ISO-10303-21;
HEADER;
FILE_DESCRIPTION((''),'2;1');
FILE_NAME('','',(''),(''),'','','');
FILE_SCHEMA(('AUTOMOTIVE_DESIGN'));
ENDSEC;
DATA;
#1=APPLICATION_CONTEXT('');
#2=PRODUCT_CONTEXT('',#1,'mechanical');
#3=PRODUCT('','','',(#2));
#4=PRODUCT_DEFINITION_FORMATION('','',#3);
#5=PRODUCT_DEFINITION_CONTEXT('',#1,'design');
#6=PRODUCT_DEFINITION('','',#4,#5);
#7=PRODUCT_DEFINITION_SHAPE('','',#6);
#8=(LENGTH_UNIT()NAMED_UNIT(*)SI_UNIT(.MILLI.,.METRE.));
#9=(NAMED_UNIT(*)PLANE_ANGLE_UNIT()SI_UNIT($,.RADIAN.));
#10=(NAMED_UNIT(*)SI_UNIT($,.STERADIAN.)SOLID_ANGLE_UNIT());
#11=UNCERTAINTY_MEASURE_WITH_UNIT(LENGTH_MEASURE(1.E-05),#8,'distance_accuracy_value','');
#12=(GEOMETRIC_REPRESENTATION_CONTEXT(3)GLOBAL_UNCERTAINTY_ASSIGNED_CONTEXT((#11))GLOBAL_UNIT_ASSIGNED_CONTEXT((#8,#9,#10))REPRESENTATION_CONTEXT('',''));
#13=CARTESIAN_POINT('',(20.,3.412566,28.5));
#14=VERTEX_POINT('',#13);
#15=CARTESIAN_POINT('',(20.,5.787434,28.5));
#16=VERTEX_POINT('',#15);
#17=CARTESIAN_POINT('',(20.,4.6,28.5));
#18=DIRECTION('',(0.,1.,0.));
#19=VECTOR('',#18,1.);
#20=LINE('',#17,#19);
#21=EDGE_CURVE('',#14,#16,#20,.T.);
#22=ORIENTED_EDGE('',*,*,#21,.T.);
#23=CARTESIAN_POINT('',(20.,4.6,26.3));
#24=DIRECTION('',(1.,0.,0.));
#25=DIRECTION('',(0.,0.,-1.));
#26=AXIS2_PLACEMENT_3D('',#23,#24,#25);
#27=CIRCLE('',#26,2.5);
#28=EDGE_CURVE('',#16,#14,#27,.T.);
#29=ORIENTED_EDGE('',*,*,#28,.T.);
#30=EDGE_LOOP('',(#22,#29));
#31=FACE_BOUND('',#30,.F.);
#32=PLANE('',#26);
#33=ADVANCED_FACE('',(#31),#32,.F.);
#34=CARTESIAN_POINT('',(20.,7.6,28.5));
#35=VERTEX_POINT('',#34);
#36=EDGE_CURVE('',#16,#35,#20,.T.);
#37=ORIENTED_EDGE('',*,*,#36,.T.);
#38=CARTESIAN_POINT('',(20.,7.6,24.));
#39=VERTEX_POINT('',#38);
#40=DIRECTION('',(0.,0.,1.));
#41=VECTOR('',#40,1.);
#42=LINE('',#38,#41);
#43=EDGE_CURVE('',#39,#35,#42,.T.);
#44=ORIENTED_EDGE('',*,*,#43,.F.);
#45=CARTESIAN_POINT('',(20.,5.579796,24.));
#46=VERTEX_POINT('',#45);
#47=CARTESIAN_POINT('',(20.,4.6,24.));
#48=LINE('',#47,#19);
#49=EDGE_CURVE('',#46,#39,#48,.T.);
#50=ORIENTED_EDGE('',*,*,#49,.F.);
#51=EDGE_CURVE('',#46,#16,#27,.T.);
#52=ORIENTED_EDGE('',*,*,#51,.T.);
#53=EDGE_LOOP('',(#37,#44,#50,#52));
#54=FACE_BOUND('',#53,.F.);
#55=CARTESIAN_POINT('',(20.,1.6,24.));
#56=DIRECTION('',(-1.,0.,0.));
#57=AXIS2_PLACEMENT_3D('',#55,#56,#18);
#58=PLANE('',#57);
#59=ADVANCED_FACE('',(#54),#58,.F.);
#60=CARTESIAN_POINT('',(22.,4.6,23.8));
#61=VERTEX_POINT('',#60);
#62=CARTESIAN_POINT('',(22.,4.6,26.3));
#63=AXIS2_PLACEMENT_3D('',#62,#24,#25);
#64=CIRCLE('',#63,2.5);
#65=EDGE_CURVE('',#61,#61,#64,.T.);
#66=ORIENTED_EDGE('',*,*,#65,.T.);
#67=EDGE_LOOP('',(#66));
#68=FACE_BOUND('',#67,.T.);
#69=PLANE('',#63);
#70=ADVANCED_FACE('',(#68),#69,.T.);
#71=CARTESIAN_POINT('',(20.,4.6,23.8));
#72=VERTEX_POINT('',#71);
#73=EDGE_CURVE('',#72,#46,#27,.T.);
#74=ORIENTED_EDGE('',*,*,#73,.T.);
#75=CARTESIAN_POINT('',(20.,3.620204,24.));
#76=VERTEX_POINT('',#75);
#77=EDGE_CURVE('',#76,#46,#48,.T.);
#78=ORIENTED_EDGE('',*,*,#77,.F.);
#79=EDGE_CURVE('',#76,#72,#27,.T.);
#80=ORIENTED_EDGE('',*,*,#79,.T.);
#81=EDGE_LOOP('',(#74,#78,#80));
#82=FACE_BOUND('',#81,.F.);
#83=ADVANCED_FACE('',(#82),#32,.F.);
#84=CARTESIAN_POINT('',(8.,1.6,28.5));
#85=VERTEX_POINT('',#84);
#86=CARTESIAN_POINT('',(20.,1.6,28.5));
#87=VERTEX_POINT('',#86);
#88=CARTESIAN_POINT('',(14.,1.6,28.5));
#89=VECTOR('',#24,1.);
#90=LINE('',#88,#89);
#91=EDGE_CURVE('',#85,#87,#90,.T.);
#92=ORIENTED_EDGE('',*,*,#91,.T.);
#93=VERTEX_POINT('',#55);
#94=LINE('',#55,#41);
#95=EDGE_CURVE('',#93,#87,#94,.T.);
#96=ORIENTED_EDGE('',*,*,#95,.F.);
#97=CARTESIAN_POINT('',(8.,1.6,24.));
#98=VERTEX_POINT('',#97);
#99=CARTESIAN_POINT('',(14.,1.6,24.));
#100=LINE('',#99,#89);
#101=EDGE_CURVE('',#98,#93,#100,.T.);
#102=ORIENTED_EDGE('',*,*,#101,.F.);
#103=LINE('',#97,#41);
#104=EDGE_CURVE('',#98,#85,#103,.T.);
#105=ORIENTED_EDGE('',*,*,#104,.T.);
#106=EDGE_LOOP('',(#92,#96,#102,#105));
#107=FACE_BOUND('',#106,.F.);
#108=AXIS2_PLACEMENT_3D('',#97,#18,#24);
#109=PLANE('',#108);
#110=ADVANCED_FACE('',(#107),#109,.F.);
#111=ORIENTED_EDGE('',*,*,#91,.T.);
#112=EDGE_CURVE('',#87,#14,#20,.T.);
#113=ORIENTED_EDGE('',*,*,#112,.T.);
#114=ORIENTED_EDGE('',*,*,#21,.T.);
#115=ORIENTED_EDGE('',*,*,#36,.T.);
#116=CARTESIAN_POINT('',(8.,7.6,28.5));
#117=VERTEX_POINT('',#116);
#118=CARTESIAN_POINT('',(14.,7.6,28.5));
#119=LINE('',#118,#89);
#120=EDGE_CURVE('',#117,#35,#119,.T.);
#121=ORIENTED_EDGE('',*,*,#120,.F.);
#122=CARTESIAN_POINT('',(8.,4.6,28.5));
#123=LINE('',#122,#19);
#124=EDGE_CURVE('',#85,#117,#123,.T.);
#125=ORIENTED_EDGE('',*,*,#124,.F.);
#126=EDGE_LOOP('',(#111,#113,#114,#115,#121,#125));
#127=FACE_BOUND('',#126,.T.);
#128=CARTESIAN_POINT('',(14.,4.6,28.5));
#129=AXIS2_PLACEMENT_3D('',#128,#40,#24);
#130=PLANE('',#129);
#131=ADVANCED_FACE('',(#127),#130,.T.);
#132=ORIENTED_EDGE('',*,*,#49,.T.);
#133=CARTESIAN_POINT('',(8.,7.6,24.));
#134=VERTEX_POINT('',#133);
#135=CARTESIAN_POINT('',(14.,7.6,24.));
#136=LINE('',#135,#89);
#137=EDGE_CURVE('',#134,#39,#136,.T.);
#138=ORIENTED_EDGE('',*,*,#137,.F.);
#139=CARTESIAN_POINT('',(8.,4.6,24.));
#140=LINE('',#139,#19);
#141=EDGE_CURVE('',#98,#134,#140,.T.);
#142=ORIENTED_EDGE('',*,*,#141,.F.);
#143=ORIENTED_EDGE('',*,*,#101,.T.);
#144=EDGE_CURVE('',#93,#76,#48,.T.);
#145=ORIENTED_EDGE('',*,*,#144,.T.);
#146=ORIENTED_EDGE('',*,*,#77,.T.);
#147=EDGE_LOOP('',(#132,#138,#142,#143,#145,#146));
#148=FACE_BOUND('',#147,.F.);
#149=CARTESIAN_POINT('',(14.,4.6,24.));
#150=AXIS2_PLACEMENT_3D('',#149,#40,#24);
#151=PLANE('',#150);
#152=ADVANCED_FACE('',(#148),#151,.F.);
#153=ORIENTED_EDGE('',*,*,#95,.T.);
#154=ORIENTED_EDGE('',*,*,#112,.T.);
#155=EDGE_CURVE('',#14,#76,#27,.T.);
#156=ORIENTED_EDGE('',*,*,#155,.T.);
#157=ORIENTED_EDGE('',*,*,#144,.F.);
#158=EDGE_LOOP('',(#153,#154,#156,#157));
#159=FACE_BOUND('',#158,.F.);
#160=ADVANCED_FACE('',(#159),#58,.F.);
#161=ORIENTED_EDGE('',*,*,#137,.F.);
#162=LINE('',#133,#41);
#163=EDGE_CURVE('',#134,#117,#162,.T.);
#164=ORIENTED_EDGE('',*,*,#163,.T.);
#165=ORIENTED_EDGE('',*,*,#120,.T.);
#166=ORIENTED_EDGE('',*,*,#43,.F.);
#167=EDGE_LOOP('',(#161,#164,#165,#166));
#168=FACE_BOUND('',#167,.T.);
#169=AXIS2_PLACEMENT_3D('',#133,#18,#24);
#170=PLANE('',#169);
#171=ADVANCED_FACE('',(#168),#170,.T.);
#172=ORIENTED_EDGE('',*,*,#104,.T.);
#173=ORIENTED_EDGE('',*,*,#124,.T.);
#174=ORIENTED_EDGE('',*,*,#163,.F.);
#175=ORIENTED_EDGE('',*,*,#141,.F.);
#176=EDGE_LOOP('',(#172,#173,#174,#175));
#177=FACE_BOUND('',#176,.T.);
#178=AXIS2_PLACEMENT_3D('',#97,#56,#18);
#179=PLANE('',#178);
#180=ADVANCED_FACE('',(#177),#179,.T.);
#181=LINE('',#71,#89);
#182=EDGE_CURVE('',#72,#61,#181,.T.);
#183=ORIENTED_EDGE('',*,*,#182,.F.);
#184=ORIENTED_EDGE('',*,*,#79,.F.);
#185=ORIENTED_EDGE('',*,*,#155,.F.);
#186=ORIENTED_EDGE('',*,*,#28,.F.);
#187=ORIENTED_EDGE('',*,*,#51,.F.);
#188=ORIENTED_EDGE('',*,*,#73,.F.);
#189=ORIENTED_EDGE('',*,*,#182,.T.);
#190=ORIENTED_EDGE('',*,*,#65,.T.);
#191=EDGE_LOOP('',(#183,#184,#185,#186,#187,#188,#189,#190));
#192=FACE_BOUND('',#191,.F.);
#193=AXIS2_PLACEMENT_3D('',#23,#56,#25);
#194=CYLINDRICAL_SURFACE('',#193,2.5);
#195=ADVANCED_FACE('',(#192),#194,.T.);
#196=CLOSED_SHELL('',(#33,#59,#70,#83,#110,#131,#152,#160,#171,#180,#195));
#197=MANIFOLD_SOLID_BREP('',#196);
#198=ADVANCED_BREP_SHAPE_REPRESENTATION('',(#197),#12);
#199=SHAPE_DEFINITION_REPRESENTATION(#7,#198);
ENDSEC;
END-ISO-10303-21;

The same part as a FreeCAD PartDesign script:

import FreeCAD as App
import Part
import Sketcher
from FreeCAD import Vector
Q = App.Units.Quantity


def add_polygon(sketch, points):
    """Adds a closed chain of lines whose ends are joined by coincident constraints."""
    first, n = sketch.GeometryCount, len(points)
    for a, b in zip(points, points[1:] + points[:1]):
        sketch.addGeometry(Part.LineSegment(App.Vector(*a, 0), App.Vector(*b, 0)), False)
    for i in range(n):
        sketch.addConstraint(Sketcher.Constraint("Coincident", first + i, 2, first + (i + 1) % n, 1))

doc = App.newDocument("Part")
body = doc.addObject("PartDesign::Body", "Body")

sketch1 = body.newObject("Sketcher::SketchObject", "Sketch")
sketch1.AttachmentSupport = (doc.getObject("XY_Plane"), [""])
sketch1.MapMode = "FlatFace"
add_polygon(sketch1, [(0, 6), (0, 0), (12, 0), (12, 6)])
sketch1.addConstraint(Sketcher.Constraint("Vertical", 0))
sketch1.addConstraint(Sketcher.Constraint("Horizontal", 1))
sketch1.addConstraint(Sketcher.Constraint("Vertical", 2))
sketch1.addConstraint(Sketcher.Constraint("Horizontal", 3))
sketch1.addConstraint(Sketcher.Constraint("Coincident", 0, 2, -1, 1))
sketch1.addConstraint(Sketcher.Constraint("DistanceX", 1, 1, 1, 2, Q("12 mm")))
sketch1.addConstraint(Sketcher.Constraint("DistanceY", 0, 2, 0, 1, Q("6 mm")))
pad1 = body.newObject("PartDesign::Pad", "Pad")
pad1.Profile = sketch1
pad1.Length = 4.5
body2 = doc.addObject("PartDesign::Body", "Body001")

sketch2 = body2.newObject("Sketcher::SketchObject", "Sketch001")
sketch2.AttachmentSupport = (doc.getObject("XY_Plane001"), [""])
sketch2.MapMode = "FlatFace"
sketch2.addGeometry(Part.Circle(Vector(0, 0, 0), Vector(0, 0, 1), 2.5), False)
sketch2.addConstraint(Sketcher.Constraint("Coincident", 0, 3, -1, 1))
sketch2.addConstraint(Sketcher.Constraint("Diameter", 0, Q("5 mm")))
pad2 = body2.newObject("PartDesign::Pad", "Pad001")
pad2.Profile = sketch2
pad2.Length = 2
body3 = doc.addObject("PartDesign::Body", "Body002")
doc.recompute()

body2.Placement = App.Placement(Vector(0, 0, 0), App.Rotation(Vector(0, 1, 0), 90))
boolean = body3.newObject("PartDesign::Boolean", "Boolean")
boolean.Type = "Fuse"
boolean.addObjects([body2])
body4 = doc.addObject("PartDesign::Body", "Body003")
doc.recompute()

body3.Placement = App.Placement(Vector(12, 3, 2.3), App.Rotation(Vector(0, 0, 1), 0))
boolean2 = body4.newObject("PartDesign::Boolean", "Boolean001")
boolean2.Type = "Fuse"
boolean2.addObjects([body3])
doc.recompute()

boolean3 = body4.newObject("PartDesign::Boolean", "Boolean002")
boolean3.Type = "Fuse"
boolean3.addObjects([body])
body5 = doc.addObject("PartDesign::Body", "Body004")
doc.recompute()

body4.Placement = App.Placement(Vector(8, 1.6, 24), App.Rotation(Vector(0, 0, 1), 0))
boolean4 = body5.newObject("PartDesign::Boolean", "Boolean003")
boolean4.Type = "Fuse"
boolean4.addObjects([body4])

doc.recompute()
